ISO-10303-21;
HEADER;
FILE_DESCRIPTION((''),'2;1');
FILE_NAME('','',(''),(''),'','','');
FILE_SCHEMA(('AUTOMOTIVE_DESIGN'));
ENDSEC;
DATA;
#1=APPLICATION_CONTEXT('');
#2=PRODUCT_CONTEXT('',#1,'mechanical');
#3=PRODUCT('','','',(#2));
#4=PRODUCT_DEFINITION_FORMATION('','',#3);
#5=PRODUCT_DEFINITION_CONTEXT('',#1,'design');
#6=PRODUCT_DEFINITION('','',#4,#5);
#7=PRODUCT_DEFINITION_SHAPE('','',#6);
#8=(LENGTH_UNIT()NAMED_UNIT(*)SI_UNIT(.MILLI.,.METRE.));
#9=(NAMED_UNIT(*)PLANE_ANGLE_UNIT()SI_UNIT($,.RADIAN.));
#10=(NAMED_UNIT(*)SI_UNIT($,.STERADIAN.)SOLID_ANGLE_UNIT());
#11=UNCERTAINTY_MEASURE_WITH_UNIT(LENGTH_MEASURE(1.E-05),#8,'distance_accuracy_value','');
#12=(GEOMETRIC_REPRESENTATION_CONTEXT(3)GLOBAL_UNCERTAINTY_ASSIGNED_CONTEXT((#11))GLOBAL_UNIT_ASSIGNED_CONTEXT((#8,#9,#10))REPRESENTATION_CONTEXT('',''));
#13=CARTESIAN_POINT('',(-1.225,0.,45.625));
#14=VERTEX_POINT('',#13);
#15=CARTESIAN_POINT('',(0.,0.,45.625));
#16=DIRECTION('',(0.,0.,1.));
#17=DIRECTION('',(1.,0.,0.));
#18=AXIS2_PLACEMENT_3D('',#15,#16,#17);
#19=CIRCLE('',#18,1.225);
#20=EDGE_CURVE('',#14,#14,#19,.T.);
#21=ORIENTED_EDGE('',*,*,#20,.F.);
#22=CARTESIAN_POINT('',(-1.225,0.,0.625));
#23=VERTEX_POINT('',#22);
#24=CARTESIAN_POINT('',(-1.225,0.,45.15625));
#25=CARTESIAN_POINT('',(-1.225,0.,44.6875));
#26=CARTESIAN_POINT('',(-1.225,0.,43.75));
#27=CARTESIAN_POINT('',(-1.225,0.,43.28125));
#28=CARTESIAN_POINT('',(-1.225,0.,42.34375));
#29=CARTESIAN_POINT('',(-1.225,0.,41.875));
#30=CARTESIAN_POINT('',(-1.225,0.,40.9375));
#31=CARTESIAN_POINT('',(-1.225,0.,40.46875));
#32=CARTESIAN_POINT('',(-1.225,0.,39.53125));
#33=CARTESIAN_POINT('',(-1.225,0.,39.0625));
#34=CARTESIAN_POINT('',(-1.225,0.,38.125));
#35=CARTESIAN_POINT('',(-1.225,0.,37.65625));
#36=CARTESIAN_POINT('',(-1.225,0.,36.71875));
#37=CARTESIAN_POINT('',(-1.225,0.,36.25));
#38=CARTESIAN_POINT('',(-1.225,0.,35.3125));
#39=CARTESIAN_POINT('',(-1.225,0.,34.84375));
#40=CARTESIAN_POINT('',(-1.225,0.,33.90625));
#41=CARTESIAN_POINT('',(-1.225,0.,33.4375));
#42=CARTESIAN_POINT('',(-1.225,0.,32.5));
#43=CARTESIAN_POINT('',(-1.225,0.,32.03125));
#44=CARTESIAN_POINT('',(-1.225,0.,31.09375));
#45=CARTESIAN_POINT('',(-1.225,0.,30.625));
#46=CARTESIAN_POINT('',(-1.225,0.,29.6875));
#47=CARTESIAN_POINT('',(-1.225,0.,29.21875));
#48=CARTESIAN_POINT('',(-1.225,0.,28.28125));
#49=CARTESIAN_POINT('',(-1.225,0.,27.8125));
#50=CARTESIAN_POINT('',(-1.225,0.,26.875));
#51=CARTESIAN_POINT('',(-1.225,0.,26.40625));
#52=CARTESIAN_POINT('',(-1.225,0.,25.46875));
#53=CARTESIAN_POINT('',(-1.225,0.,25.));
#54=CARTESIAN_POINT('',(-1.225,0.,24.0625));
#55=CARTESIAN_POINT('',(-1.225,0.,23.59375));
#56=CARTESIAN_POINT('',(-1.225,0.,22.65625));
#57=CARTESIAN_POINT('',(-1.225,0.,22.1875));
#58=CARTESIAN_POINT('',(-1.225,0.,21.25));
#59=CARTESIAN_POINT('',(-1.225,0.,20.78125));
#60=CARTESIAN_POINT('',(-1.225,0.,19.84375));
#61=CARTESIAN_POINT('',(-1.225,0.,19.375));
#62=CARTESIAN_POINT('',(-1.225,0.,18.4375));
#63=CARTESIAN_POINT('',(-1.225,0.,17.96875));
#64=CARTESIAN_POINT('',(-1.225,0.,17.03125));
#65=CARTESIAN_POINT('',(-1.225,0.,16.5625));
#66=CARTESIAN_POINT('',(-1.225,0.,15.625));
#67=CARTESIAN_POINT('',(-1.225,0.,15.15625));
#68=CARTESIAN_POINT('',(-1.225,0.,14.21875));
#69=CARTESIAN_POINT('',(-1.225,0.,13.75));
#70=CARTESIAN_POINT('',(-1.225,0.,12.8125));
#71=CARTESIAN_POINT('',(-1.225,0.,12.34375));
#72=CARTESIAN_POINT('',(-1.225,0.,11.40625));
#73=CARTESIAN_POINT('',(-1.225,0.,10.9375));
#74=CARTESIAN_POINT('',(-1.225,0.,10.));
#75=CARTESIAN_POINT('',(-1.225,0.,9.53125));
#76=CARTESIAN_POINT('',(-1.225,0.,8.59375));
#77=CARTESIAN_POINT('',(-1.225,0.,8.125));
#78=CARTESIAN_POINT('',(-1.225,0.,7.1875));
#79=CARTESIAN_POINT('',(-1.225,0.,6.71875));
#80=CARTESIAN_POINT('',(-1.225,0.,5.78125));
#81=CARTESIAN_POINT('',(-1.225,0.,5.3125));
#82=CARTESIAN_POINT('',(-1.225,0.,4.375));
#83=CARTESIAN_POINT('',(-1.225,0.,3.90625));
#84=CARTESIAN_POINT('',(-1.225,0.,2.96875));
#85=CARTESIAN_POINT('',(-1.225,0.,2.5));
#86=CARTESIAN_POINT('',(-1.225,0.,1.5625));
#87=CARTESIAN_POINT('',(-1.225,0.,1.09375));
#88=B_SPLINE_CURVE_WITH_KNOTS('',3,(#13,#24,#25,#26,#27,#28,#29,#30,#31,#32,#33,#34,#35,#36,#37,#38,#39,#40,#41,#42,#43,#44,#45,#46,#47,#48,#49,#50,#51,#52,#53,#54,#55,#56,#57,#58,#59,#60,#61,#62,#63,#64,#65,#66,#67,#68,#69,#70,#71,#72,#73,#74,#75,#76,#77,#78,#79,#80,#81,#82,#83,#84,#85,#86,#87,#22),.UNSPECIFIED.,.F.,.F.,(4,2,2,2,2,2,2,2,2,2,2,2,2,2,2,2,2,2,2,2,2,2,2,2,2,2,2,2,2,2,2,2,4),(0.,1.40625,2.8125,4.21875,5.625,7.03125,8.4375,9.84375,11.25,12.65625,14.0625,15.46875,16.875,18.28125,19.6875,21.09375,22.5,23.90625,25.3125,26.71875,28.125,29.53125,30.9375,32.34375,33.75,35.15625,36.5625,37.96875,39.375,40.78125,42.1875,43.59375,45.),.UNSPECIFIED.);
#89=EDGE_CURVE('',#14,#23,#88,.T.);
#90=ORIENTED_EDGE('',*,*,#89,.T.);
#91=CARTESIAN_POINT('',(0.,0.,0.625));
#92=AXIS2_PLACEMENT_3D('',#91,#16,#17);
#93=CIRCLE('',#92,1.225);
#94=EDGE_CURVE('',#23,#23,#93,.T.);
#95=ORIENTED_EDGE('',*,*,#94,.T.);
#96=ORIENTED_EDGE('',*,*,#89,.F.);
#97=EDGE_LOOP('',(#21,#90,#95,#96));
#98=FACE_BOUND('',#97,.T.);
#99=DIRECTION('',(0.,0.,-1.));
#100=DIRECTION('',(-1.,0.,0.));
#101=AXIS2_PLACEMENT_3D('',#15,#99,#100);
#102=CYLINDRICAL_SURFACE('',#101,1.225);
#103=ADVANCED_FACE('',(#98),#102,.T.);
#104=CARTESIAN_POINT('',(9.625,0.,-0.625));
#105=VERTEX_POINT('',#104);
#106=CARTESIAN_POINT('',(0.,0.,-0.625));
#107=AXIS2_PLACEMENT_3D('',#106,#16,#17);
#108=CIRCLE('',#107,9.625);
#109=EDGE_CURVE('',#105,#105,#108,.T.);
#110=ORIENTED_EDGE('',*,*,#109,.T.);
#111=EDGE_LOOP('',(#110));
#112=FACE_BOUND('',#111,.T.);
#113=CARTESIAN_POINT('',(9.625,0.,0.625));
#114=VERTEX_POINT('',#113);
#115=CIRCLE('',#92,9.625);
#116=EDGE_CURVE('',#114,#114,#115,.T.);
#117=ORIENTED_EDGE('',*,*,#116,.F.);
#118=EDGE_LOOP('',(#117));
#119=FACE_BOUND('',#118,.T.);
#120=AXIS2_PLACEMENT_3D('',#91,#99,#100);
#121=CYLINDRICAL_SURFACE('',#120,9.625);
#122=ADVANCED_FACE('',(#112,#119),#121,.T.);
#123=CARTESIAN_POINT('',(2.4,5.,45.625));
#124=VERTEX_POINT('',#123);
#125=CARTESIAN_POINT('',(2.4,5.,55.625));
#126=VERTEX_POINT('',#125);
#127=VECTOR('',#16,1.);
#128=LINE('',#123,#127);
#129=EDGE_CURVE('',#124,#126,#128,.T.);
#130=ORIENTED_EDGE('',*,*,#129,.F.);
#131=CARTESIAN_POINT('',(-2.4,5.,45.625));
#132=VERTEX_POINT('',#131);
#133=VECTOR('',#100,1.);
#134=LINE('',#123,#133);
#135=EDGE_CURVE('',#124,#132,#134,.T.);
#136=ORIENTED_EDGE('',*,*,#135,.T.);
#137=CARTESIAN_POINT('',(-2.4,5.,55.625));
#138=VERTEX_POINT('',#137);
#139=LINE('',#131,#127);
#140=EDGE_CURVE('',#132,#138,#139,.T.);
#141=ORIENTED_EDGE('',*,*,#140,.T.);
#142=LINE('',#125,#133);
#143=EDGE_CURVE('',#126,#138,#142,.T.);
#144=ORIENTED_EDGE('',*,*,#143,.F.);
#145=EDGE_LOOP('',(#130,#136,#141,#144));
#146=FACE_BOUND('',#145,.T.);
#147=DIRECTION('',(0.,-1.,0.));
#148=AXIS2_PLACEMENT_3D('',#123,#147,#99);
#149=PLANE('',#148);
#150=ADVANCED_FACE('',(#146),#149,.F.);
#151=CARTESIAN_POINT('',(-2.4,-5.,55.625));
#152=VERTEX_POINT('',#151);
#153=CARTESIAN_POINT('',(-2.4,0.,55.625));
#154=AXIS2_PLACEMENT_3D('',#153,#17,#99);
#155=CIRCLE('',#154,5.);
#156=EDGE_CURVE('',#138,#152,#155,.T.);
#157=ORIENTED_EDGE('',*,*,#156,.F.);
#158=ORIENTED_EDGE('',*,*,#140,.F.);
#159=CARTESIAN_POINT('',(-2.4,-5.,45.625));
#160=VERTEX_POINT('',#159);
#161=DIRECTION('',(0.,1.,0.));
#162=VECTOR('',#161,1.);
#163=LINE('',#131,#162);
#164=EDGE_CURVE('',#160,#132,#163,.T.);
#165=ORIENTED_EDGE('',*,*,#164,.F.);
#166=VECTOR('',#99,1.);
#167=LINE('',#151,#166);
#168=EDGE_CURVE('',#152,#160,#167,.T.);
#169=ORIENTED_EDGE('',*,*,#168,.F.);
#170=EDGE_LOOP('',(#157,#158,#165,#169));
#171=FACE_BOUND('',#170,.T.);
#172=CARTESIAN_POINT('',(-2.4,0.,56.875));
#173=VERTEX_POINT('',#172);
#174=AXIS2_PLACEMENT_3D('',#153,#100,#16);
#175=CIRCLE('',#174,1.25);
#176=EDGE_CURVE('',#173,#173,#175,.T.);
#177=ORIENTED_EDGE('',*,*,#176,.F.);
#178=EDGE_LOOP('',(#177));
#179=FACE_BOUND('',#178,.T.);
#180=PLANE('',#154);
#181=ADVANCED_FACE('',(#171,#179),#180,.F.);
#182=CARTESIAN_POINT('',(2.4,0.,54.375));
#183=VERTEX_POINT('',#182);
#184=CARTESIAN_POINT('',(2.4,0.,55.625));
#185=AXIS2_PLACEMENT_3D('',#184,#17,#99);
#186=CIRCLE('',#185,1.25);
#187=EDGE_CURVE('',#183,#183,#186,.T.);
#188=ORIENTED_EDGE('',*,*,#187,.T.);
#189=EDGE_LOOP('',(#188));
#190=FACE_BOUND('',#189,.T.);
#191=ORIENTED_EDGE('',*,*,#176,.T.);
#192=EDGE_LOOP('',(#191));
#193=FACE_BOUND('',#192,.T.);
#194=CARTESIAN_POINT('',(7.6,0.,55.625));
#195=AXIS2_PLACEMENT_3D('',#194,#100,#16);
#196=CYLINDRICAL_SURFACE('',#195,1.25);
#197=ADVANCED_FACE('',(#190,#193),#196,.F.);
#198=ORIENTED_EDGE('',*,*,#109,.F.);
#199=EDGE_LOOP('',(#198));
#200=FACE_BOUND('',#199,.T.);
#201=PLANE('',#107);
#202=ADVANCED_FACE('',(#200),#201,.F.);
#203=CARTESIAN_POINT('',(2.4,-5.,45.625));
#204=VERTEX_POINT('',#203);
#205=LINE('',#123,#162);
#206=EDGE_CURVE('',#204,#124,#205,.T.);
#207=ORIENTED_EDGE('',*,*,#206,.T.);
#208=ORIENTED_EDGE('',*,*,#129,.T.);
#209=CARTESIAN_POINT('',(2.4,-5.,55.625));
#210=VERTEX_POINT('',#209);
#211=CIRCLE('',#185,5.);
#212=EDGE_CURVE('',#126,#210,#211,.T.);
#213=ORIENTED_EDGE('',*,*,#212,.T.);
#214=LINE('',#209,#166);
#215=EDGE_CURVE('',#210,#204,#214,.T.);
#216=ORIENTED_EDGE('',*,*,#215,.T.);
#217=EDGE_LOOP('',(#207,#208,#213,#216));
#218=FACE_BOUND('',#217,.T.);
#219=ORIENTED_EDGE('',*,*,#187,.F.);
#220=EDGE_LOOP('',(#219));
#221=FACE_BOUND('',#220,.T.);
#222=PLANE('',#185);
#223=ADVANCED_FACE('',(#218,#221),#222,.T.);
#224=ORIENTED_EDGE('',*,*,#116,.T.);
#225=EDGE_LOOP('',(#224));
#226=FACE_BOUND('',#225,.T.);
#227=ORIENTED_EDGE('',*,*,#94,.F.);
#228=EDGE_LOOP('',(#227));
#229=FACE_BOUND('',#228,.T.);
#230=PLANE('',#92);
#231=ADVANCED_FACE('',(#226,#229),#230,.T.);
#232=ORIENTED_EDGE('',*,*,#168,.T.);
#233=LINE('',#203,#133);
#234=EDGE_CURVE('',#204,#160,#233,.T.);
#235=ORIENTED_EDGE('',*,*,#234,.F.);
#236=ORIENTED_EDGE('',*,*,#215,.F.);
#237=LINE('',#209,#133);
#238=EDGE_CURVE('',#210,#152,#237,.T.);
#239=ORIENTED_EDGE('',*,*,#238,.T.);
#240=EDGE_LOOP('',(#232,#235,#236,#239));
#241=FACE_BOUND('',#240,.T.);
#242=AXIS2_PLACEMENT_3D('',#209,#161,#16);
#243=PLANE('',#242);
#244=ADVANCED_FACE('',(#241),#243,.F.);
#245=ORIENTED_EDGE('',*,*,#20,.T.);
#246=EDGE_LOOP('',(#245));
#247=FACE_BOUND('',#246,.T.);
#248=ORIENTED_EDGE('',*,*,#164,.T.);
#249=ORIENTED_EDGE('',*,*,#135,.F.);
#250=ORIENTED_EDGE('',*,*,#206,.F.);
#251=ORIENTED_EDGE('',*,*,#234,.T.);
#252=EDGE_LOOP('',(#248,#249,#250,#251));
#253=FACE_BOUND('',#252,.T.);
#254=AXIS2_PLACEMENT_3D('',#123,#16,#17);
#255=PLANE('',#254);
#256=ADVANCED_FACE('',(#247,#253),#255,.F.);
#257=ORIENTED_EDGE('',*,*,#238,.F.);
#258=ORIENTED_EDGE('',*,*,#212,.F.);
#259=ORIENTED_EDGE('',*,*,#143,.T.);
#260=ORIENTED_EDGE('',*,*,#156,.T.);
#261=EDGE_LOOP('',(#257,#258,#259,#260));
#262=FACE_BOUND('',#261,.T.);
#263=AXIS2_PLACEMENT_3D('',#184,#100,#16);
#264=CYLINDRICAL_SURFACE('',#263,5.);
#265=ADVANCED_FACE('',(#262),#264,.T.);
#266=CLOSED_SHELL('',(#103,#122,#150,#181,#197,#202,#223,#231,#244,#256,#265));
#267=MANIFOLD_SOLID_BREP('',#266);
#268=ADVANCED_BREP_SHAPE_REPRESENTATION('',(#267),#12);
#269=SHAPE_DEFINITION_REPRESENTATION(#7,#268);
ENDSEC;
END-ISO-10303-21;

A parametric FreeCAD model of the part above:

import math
import FreeCAD as App
import Part
import Sketcher

V = App.Vector
Q = App.Units.Quantity

doc = App.newDocument("Part")
body = doc.addObject("PartDesign::Body", "Body")

sketch1 = doc.addObject("Sketcher::SketchObject", "Sketch")
body.addObject(sketch1)
sketch1.AttachmentSupport = (doc.XY_Plane, [""])
sketch1.MapMode = "FlatFace"
sketch1.addGeometry(Part.Circle(V(0, 0, 0), V(0, 0, 1), 10), False)
sketch1.addConstraint([
    Sketcher.Constraint("Coincident", 0, 3, -1, 1),
    Sketcher.Constraint("Diameter", 0, Q("19.25 mm")),
])
pad1 = doc.addObject("PartDesign::Pad", "Pad")
body.addObject(pad1)
pad1.Profile = sketch1
pad1.Length = 1.25
pad1.Midplane = True

sketch2 = doc.addObject("Sketcher::SketchObject", "Sketch001")
body.addObject(sketch2)
sketch2.AttachmentSupport = (doc.XY_Plane, [""])
sketch2.MapMode = "FlatFace"
sketch2.AttachmentOffset = App.Placement(V(0, 0, 0.625), App.Rotation())
sketch2.addGeometry(Part.Circle(V(0, 0, 0), V(0, 0, 1), 1.2), False)
sketch2.addConstraint([
    Sketcher.Constraint("Coincident", 0, 3, -1, 1),
    Sketcher.Constraint("Diameter", 0, Q("2.45 mm")),
])
pad2 = doc.addObject("PartDesign::Pad", "Pad001")
body.addObject(pad2)
pad2.Profile = sketch2
pad2.Length = 45

sketch3 = doc.addObject("Sketcher::SketchObject", "Sketch002")
body.addObject(sketch3)
sketch3.AttachmentSupport = (doc.YZ_Plane, [""])
sketch3.MapMode = "FlatFace"
sketch3.addGeometry([
    Part.LineSegment(V(-5, 46, 0), V(5, 46, 0)),
    Part.LineSegment(V(5, 46, 0), V(5, 56, 0)),
    Part.ArcOfCircle(Part.Circle(V(0, 56, 0), V(0, 0, 1), 5), math.radians(0), math.radians(180)),
    Part.LineSegment(V(-5, 56, 0), V(-5, 46, 0)),
], False)
sketch3.addConstraint([
    Sketcher.Constraint("Coincident", 0, 2, 1, 1),
    Sketcher.Constraint("Tangent", 1, 2, 2, 1),
    Sketcher.Constraint("Tangent", 2, 2, 3, 1),
    Sketcher.Constraint("Coincident", 3, 2, 0, 1),
    Sketcher.Constraint("Horizontal", 0),
    Sketcher.Constraint("Vertical", 1),
    Sketcher.Constraint("Vertical", 3),
    Sketcher.Constraint("PointOnObject", 2, 3, -2),
    Sketcher.Constraint("Equal", 0, 1),
    Sketcher.Constraint("Radius", 2, Q("5 mm")),
    Sketcher.Constraint("DistanceY", -1, 1, 2, 3, Q("55.625 mm")),
])
pad3 = doc.addObject("PartDesign::Pad", "Pad002")
body.addObject(pad3)
pad3.Profile = sketch3
pad3.Length = 4.8
pad3.Midplane = True

sketch4 = doc.addObject("Sketcher::SketchObject", "Sketch003")
body.addObject(sketch4)
sketch4.AttachmentSupport = (doc.YZ_Plane, [""])
sketch4.MapMode = "FlatFace"
sketch4.AttachmentOffset = App.Placement(V(0, 0, -2.4), App.Rotation())
sketch4.addGeometry(Part.Circle(V(0, 55.6, 0), V(0, 0, 1), 1.2), False)
sketch4.addConstraint([
    Sketcher.Constraint("PointOnObject", 0, 3, -2),
    Sketcher.Constraint("Diameter", 0, Q("2.5 mm")),
    Sketcher.Constraint("DistanceY", -1, 1, 0, 3, Q("55.625 mm")),
])
pocket1 = doc.addObject("PartDesign::Pocket", "Pocket")
body.addObject(pocket1)
pocket1.Profile = sketch4
pocket1.Length = 10
pocket1.Reversed = True

doc.recompute()
